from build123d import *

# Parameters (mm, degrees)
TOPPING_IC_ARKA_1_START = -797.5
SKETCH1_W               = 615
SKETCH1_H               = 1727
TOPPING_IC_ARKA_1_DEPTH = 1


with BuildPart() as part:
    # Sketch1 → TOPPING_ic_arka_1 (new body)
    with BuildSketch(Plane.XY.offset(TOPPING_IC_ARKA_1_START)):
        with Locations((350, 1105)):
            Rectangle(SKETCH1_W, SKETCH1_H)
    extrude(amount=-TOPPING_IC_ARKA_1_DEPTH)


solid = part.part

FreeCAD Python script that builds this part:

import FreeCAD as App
import Part
import Sketcher
from FreeCAD import Vector
Q = App.Units.Quantity

doc = App.newDocument("Part")
params = doc.addObject("Spreadsheet::Sheet", "Params")
for row, (alias, value) in enumerate([
    ("sketch1_width", "615 mm"),
    ("sketch1_height", "1727 mm"),
    ("pad1_length", "1 mm"),
], start=1):
    params.set(f"A{row}", alias)
    params.set(f"B{row}", "=" + value)
    params.setAlias(f"B{row}", alias)

body = doc.addObject("PartDesign::Body", "Body")

sketch1 = body.newObject("Sketcher::SketchObject", "Sketch")
sketch1.AttachmentSupport = (doc.getObject("XY_Plane"), [""])
sketch1.MapMode = "FlatFace"
sketch1.AttachmentOffset = App.Placement(Vector(0, 0, -797.5), App.Rotation())
sketch1.addGeometry([
    Part.LineSegment(Vector(42.5, 1968.5, 0), Vector(42.5, 241.5, 0)),
    Part.LineSegment(Vector(42.5, 241.5, 0), Vector(657.5, 241.5, 0)),
    Part.LineSegment(Vector(657.5, 241.5, 0), Vector(657.5, 1968.5, 0)),
    Part.LineSegment(Vector(657.5, 1968.5, 0), Vector(42.5, 1968.5, 0)),
], False)
sketch1.addConstraint([
    Sketcher.Constraint("Coincident", 0, 2, 1, 1),
    Sketcher.Constraint("Coincident", 1, 2, 2, 1),
    Sketcher.Constraint("Coincident", 2, 2, 3, 1),
    Sketcher.Constraint("Coincident", 3, 2, 0, 1),
    Sketcher.Constraint("Vertical", 0),
    Sketcher.Constraint("Horizontal", 1),
    Sketcher.Constraint("Vertical", 2),
    Sketcher.Constraint("Horizontal", 3),
    Sketcher.Constraint("DistanceX", 1, 1, 1, 2, Q("615 mm")),
    Sketcher.Constraint("DistanceY", 0, 2, 0, 1, Q("1727 mm")),
    Sketcher.Constraint("DistanceX", -1, 1, 0, 2, Q("42.5 mm")),
    Sketcher.Constraint("DistanceY", -1, 1, 0, 2, Q("241.5 mm")),
])
sketch1.setExpression("Constraints[8]", "Params.sketch1_width")
sketch1.setExpression("Constraints[9]", "Params.sketch1_height")
pad1 = body.newObject("PartDesign::Pad", "Pad")
pad1.Profile = sketch1
pad1.setExpression("Length", "Params.pad1_length")
pad1.Reversed = True

doc.recompute()
